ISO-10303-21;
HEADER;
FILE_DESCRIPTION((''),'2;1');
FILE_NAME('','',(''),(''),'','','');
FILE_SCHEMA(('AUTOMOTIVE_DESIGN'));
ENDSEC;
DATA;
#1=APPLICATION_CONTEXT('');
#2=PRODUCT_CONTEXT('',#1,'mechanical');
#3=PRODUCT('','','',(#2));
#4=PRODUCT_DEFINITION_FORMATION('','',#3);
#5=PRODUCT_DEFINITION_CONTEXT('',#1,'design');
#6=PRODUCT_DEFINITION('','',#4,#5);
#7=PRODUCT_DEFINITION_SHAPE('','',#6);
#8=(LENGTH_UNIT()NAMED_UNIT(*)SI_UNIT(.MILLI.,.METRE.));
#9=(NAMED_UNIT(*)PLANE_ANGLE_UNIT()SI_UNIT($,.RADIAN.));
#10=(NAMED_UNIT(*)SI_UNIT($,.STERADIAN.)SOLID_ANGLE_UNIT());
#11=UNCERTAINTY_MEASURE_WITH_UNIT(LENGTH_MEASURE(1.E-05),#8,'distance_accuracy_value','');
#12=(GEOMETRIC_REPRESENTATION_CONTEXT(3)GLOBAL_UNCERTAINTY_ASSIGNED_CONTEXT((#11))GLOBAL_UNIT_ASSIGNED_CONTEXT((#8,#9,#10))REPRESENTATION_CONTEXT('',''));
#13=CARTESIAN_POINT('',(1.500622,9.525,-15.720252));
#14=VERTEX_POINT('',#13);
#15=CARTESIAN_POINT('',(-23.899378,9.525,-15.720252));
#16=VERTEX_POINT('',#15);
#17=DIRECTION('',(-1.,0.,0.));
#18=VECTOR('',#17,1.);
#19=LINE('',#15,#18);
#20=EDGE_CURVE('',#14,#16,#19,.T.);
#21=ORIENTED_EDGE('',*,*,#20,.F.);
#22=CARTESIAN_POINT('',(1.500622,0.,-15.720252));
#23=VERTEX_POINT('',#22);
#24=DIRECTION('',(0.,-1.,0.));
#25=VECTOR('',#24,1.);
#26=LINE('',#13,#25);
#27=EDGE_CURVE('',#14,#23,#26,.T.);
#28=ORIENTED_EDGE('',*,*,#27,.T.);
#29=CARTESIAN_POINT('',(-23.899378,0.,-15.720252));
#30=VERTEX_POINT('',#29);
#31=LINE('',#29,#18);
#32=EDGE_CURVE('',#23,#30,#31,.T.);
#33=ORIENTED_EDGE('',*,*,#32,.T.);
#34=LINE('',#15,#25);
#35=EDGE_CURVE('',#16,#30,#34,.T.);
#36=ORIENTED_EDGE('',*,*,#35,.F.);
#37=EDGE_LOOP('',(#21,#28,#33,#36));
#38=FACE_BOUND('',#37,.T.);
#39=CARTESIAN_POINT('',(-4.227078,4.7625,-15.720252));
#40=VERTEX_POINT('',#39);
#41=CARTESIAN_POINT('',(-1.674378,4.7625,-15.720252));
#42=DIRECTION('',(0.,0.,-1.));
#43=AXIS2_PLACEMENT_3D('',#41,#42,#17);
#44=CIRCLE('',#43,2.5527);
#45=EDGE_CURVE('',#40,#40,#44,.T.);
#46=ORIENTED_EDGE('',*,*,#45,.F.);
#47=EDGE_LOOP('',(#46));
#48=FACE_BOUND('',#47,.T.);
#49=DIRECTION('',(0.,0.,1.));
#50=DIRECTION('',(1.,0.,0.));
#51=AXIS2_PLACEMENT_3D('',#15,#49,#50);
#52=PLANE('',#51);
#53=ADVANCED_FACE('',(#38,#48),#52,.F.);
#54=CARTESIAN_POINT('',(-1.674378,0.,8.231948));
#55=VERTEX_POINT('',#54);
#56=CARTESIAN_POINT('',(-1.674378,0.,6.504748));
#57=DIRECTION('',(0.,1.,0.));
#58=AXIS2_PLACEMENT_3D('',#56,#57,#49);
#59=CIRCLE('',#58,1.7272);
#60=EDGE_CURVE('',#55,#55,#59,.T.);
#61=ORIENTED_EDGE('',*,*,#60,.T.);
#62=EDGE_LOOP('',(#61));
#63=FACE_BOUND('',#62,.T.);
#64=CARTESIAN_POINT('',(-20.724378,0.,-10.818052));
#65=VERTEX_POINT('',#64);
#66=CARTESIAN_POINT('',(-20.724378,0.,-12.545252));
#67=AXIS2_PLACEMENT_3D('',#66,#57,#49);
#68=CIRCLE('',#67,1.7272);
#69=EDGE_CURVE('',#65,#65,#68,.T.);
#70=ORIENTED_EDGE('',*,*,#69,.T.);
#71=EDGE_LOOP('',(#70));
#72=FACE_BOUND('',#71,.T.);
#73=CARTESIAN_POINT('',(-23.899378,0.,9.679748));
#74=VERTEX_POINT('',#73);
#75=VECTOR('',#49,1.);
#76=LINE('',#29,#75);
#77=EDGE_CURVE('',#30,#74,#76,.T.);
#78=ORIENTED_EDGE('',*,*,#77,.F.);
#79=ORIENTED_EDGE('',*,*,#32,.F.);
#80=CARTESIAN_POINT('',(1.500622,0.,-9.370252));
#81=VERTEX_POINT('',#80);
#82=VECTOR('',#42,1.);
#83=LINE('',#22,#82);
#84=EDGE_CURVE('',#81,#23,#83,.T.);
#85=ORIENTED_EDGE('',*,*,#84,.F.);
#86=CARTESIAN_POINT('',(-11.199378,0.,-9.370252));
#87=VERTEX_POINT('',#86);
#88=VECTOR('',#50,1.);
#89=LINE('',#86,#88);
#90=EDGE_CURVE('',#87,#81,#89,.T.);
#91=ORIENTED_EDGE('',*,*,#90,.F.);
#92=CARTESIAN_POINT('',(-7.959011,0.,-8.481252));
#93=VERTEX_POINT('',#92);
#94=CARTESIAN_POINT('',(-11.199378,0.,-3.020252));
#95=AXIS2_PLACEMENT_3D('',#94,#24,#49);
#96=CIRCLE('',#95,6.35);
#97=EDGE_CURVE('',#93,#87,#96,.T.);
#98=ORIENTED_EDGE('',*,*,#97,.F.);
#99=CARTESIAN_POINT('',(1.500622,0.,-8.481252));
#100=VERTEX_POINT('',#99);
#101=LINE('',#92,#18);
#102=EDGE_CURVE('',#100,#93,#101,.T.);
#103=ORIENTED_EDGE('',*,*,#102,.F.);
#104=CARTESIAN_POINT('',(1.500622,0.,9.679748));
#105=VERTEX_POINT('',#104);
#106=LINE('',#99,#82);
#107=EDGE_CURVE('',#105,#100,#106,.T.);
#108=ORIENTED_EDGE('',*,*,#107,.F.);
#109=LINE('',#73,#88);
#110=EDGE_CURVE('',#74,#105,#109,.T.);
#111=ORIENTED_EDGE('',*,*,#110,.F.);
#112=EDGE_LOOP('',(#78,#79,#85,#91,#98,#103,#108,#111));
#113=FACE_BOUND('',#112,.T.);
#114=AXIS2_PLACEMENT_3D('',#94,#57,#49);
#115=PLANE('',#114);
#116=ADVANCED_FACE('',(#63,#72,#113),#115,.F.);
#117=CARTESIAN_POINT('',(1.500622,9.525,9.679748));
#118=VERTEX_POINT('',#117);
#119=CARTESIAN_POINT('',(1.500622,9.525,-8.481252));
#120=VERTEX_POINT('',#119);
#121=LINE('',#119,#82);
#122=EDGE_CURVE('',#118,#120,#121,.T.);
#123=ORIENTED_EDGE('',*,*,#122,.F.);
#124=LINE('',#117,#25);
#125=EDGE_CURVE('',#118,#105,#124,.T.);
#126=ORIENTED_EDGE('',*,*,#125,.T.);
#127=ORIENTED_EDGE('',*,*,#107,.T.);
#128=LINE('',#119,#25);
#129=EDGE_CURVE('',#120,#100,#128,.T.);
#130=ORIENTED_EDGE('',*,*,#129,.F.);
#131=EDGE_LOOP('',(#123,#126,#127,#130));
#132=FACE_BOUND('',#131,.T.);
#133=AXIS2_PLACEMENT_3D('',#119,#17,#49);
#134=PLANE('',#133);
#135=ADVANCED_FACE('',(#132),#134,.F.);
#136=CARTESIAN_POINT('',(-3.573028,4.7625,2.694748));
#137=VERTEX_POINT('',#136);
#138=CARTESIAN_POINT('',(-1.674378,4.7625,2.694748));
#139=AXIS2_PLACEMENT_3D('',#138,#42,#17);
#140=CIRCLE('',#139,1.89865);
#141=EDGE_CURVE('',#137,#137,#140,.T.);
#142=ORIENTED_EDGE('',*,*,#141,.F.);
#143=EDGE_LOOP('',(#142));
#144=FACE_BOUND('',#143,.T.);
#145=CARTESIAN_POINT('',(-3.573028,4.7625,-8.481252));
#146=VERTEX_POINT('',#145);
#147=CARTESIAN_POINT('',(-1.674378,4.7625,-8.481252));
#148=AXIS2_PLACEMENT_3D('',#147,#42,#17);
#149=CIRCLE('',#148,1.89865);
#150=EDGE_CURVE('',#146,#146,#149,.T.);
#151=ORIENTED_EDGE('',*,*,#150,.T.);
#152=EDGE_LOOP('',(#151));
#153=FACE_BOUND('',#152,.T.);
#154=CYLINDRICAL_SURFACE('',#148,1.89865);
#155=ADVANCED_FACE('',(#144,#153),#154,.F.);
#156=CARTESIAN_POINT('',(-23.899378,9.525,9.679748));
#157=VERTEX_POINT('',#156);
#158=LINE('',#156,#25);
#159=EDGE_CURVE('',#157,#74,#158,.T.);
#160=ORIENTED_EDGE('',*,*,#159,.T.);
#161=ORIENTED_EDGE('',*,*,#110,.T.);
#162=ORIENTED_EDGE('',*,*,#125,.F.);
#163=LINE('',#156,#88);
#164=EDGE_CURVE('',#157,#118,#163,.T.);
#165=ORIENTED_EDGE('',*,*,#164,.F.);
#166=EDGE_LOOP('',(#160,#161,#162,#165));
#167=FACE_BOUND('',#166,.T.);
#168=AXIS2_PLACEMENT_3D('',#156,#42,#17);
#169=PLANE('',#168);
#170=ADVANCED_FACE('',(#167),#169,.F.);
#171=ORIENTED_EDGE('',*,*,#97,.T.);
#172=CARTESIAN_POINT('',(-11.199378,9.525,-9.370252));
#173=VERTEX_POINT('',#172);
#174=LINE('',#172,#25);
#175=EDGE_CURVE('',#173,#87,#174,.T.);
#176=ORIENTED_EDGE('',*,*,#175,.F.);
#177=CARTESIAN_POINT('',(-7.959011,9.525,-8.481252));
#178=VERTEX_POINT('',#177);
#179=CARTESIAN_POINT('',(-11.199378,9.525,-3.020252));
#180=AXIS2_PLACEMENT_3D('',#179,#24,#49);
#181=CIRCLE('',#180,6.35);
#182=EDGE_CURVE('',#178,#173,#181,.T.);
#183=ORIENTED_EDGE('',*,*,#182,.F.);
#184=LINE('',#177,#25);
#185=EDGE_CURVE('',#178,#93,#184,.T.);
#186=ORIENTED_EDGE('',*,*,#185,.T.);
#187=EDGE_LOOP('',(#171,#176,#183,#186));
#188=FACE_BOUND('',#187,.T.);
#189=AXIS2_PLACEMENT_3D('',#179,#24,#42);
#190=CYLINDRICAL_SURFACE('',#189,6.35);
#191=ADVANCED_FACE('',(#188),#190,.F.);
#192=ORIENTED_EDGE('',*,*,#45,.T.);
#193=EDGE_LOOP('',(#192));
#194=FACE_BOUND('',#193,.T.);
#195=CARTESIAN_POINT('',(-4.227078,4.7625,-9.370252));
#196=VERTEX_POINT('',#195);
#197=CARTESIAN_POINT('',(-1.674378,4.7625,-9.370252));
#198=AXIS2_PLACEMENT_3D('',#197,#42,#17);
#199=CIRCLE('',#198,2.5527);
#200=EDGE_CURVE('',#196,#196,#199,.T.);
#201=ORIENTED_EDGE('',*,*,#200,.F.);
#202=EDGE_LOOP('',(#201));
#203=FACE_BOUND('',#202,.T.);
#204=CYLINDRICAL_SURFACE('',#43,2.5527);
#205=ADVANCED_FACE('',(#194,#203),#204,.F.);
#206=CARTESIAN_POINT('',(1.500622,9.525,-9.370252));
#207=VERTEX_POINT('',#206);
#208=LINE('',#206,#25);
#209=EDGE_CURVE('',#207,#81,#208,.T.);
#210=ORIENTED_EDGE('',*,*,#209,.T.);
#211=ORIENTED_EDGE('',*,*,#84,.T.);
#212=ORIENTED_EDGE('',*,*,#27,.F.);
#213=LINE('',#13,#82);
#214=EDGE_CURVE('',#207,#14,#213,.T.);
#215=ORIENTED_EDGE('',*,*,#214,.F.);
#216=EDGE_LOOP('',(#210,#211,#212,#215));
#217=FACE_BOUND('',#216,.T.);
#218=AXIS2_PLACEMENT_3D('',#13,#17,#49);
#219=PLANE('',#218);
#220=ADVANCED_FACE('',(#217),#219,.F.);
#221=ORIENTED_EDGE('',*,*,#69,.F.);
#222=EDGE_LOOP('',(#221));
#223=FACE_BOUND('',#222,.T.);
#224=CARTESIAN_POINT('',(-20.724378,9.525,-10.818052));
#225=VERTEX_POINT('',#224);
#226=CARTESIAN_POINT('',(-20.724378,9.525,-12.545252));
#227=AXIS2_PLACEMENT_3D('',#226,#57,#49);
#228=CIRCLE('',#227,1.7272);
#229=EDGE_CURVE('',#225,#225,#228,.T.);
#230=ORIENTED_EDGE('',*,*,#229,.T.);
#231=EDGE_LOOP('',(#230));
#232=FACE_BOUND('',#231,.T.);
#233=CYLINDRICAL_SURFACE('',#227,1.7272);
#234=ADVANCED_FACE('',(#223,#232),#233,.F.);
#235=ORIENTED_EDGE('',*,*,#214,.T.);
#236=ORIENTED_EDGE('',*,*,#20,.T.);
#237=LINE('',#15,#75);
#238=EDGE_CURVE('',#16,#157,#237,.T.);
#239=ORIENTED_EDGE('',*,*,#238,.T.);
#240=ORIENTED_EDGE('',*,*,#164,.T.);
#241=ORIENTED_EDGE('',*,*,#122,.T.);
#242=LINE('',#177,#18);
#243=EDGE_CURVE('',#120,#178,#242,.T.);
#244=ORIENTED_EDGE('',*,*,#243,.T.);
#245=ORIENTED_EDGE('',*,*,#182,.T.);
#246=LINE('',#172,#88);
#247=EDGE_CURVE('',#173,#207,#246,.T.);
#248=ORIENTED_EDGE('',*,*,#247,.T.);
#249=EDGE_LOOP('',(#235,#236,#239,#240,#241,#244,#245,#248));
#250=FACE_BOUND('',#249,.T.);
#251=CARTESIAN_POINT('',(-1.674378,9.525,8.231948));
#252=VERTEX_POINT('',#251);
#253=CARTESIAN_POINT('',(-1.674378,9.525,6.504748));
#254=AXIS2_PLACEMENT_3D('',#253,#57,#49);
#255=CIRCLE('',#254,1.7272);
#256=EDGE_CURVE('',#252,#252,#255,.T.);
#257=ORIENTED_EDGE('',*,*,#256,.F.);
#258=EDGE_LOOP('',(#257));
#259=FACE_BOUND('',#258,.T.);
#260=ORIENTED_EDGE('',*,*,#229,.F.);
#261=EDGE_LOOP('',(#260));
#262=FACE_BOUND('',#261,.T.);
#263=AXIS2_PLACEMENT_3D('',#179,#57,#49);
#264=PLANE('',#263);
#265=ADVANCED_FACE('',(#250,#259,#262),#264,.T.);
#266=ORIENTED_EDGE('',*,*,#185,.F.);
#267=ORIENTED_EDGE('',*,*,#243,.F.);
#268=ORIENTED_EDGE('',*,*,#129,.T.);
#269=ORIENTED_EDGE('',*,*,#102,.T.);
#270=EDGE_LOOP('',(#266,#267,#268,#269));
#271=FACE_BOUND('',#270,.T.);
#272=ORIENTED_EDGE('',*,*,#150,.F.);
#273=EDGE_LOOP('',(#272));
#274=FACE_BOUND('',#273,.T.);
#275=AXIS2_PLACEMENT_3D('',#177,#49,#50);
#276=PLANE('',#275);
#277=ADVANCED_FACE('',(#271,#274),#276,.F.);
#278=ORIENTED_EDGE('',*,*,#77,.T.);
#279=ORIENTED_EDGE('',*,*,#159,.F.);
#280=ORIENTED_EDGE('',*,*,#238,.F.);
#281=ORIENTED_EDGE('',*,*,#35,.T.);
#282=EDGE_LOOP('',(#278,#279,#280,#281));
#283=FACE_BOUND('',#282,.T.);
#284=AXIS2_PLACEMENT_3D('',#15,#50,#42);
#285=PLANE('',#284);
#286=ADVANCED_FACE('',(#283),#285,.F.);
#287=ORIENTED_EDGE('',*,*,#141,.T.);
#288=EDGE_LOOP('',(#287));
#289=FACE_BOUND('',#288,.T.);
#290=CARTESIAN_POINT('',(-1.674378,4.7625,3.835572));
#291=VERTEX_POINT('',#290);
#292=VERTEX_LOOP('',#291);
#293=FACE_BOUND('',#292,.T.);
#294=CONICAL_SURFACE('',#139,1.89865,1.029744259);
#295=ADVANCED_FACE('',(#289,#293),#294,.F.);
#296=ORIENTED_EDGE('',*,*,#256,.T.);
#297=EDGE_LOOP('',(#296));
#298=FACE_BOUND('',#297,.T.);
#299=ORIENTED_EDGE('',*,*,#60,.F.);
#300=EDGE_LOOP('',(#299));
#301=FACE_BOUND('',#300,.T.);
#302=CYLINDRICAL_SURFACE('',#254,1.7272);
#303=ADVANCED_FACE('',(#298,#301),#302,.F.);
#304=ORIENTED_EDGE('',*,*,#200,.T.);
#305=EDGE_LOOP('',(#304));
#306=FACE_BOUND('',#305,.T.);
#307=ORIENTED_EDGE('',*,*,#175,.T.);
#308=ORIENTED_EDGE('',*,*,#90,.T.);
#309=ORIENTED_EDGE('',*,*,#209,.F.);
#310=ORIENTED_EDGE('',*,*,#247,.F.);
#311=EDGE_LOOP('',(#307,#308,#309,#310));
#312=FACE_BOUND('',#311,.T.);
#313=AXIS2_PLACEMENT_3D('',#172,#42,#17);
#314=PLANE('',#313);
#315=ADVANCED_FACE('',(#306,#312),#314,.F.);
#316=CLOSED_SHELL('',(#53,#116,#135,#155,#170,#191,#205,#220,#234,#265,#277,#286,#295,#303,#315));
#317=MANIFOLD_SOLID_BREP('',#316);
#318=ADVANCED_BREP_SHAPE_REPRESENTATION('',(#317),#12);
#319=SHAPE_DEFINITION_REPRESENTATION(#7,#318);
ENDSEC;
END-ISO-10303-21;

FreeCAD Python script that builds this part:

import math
import FreeCAD as App
import Part
import Sketcher
Q = App.Units.Quantity

doc = App.newDocument("Part")
params = doc.addObject("Spreadsheet::Sheet", "Params")
for row, (alias, value) in enumerate([
    ("sketch1_width", "1 in"),
    ("sketch1_radius", "0.25 in"),
    ("sketch1_width2", "0.5 in"),
    ("sketch1_height", "0.25 in"),
    ("sketch1_height2", "0.715 in"),
    ("pad1_length", "0.375 in"),
    ("sketch2_diameter", "0.136 in"),
    ("hole_diameter", "0.136 in"),
    ("sketch3_height", "0.44 in"),
    ("groove_angle", "360 deg"),
    ("sketch4_diameter", "0.201 in"),
    ("hole2_diameter", "0.201 in"),
    ("hole2_depth", "0.25 in"),
], start=1):
    params.set(f"A{row}", alias)
    params.set(f"B{row}", "=" + value)
    params.setAlias(f"B{row}", alias)

body = doc.addObject("PartDesign::Body", "Body")

sketch1 = body.newObject("Sketcher::SketchObject", "Sketch")
sketch1.AttachmentSupport = (doc.getObject("XZ_Plane"), [""])
sketch1.MapMode = "FlatFace"
sketch1.addGeometry([
    Part.LineSegment(App.Vector(1.500622, 9.679748, 0), App.Vector(1.500622, -8.481252, 0)),
    Part.LineSegment(App.Vector(1.500622, -8.481252, 0), App.Vector(-7.959011, -8.481252, 0)),
    Part.ArcOfCircle(Part.Circle(App.Vector(-11.199378, -3.020252, 0), App.Vector(0, 0, 1), 6.35), math.radians(-59.316583), math.radians(270)),
    Part.LineSegment(App.Vector(-11.199378, -9.370252, 0), App.Vector(1.500622, -9.370252, 0)),
    Part.LineSegment(App.Vector(1.500622, -9.370252, 0), App.Vector(1.500622, -15.720252, 0)),
    Part.LineSegment(App.Vector(1.500622, -15.720252, 0), App.Vector(-23.899378, -15.720252, 0)),
    Part.LineSegment(App.Vector(-23.899378, -15.720252, 0), App.Vector(-23.899378, 9.679748, 0)),
    Part.LineSegment(App.Vector(-23.899378, 9.679748, 0), App.Vector(1.500622, 9.679748, 0)),
], False)
sketch1.addConstraint([
    Sketcher.Constraint("Coincident", 0, 2, 1, 1),
    Sketcher.Constraint("Coincident", 1, 2, 2, 1),
    Sketcher.Constraint("Tangent", 2, 2, 3, 1),
    Sketcher.Constraint("Coincident", 3, 2, 4, 1),
    Sketcher.Constraint("Coincident", 4, 2, 5, 1),
    Sketcher.Constraint("Coincident", 5, 2, 6, 1),
    Sketcher.Constraint("Coincident", 6, 2, 7, 1),
    Sketcher.Constraint("Coincident", 7, 2, 0, 1),
    Sketcher.Constraint("Vertical", 0),
    Sketcher.Constraint("Horizontal", 1),
    Sketcher.Constraint("Horizontal", 3),
    Sketcher.Constraint("Vertical", 4),
    Sketcher.Constraint("Horizontal", 5),
    Sketcher.Constraint("Vertical", 6),
    Sketcher.Constraint("Horizontal", 7),
    Sketcher.Constraint("Vertical", 0, 2, 3, 2),
    Sketcher.Constraint("Equal", 7, 6),
    Sketcher.Constraint("DistanceX", 5, 2, 5, 1, Q("1 in")),
    Sketcher.Constraint("Radius", 2, Q("0.25 in")),
    Sketcher.Constraint("DistanceX", 3, 1, 3, 2, Q("0.5 in")),
    Sketcher.Constraint("DistanceY", 4, 2, 4, 1, Q("0.25 in")),
    Sketcher.Constraint("DistanceY", 0, 2, 0, 1, Q("0.715 in")),
    Sketcher.Constraint("DistanceX", 2, 3, -1, 1, 11.199378),
    Sketcher.Constraint("DistanceY", 2, 3, -1, 1, 3.020252),
])
sketch1.setExpression("Constraints[17]", "Params.sketch1_width")
sketch1.setExpression("Constraints[18]", "Params.sketch1_radius")
sketch1.setExpression("Constraints[19]", "Params.sketch1_width2")
sketch1.setExpression("Constraints[20]", "Params.sketch1_height")
sketch1.setExpression("Constraints[21]", "Params.sketch1_height2")
pad1 = body.newObject("PartDesign::Pad", "Pad")
pad1.Profile = sketch1
pad1.setExpression("Length", "Params.pad1_length")
pad1.Reversed = True

sketch2 = body.newObject("Sketcher::SketchObject", "Sketch001")
sketch2.AttachmentSupport = (doc.getObject("XZ_Plane"), [""])
sketch2.MapMode = "FlatFace"
sketch2.AttachmentOffset = App.Placement(App.Vector(0, 0, -0.375 * 25.4), App.Rotation())
sketch2.addGeometry([
    Part.Circle(App.Vector(-20.724378, -12.545252, 0), App.Vector(0, 0, 1), 1.7272),
    Part.Circle(App.Vector(-1.674378, 6.504748, 0), App.Vector(0, 0, 1), 1.7272),
], False)
sketch2.addConstraint([
    Sketcher.Constraint("Equal", 0, 1),
    Sketcher.Constraint("Diameter", 0, Q("0.136 in")),
    Sketcher.Constraint("DistanceX", 0, 3, 1, 3, Q("0.75 in")),
    Sketcher.Constraint("DistanceY", 0, 3, 1, 3, Q("0.75 in")),
    Sketcher.Constraint("DistanceX", 0, 3, -1, 1, 20.724378),
    Sketcher.Constraint("DistanceY", 0, 3, -1, 1, 12.545252),
])
sketch2.setExpression("Constraints[1]", "Params.sketch2_diameter")
doc.recompute()
hole = body.newObject("PartDesign::Hole", "Hole")
hole.Profile = sketch2
hole.ThreadType = "None"
hole.setExpression("Diameter", "Params.hole_diameter")
hole.DepthType = "ThroughAll"
hole.Reversed = True

sketch3 = body.newObject("Sketcher::SketchObject", "Sketch002")
sketch3.AttachmentSupport = (doc.getObject("YZ_Plane"), [""])
sketch3.MapMode = "FlatFace"
sketch3.AttachmentOffset = App.Placement(App.Vector(0, 0, -1.674378), App.Rotation())
sketch3.addGeometry([
    Part.LineSegment(App.Vector(4.7625, 3.835572, 0), App.Vector(4.7625, -8.481252, 0)),
    Part.LineSegment(App.Vector(4.7625, -8.481252, 0), App.Vector(6.66115, -8.481252, 0)),
    Part.LineSegment(App.Vector(6.66115, -8.481252, 0), App.Vector(6.66115, 2.694748, 0)),
    Part.LineSegment(App.Vector(6.66115, 2.694748, 0), App.Vector(4.7625, 3.835572, 0)),
], False)
sketch3.addGeometry(Part.LineSegment(App.Vector(4.7625, -8.481252, 0), App.Vector(4.7625, 3.835572, 0)), True)
sketch3.addConstraint([
    Sketcher.Constraint("Coincident", 0, 2, 1, 1),
    Sketcher.Constraint("Coincident", 1, 2, 2, 1),
    Sketcher.Constraint("Coincident", 2, 2, 3, 1),
    Sketcher.Constraint("Coincident", 3, 2, 0, 1),
    Sketcher.Constraint("Vertical", 0),
    Sketcher.Constraint("Horizontal", 1),
    Sketcher.Constraint("Vertical", 2),
    Sketcher.Constraint("Vertical", 4),
    Sketcher.Constraint("Coincident", 4, 1, 0, 2),
    Sketcher.Constraint("Equal", 0, 4),
    Sketcher.Constraint("Angle", 3, Q("149 deg")),
    Sketcher.Constraint("DistanceY", 2, 1, 2, 2, Q("0.44 in")),
    Sketcher.Constraint("DistanceX", -1, 1, 0, 2, Q("0.1875 in")),
    Sketcher.Constraint("DistanceX", 1, 1, 1, 2, 1.89865),
    Sketcher.Constraint("DistanceY", -1, 1, 3, 2, 3.835572),
])
sketch3.setExpression("Constraints[11]", "Params.sketch3_height")
groove = body.newObject("PartDesign::Groove", "Groove")
groove.Profile = sketch3
groove.ReferenceAxis = (sketch3, ["Axis0"])
groove.setExpression("Angle", "Params.groove_angle")

sketch4 = body.newObject("Sketcher::SketchObject", "Sketch003")
sketch4.AttachmentSupport = (doc.getObject("XY_Plane"), [""])
sketch4.MapMode = "FlatFace"
sketch4.AttachmentOffset = App.Placement(App.Vector(0, 0, -15.720252), App.Rotation())
sketch4.addGeometry(Part.Circle(App.Vector(-1.674378, 4.7625, 0), App.Vector(0, 0, 1), 2.5527), False)
sketch4.addConstraint([
    Sketcher.Constraint("Diameter", 0, Q("0.201 in")),
    Sketcher.Constraint("DistanceY", -1, 1, 0, 3, Q("0.1875 in")),
    Sketcher.Constraint("DistanceX", 0, 3, -1, 1, 1.674378),
])
sketch4.setExpression("Constraints[0]", "Params.sketch4_diameter")
doc.recompute()
hole2 = body.newObject("PartDesign::Hole", "Hole001")
hole2.Profile = sketch4
hole2.ThreadType = "None"
hole2.setExpression("Diameter", "Params.hole2_diameter")
hole2.DepthType = "Dimension"
hole2.setExpression("Depth", "Params.hole2_depth")
hole2.DrillPoint = "Flat"
hole2.Reversed = True

doc.recompute()
